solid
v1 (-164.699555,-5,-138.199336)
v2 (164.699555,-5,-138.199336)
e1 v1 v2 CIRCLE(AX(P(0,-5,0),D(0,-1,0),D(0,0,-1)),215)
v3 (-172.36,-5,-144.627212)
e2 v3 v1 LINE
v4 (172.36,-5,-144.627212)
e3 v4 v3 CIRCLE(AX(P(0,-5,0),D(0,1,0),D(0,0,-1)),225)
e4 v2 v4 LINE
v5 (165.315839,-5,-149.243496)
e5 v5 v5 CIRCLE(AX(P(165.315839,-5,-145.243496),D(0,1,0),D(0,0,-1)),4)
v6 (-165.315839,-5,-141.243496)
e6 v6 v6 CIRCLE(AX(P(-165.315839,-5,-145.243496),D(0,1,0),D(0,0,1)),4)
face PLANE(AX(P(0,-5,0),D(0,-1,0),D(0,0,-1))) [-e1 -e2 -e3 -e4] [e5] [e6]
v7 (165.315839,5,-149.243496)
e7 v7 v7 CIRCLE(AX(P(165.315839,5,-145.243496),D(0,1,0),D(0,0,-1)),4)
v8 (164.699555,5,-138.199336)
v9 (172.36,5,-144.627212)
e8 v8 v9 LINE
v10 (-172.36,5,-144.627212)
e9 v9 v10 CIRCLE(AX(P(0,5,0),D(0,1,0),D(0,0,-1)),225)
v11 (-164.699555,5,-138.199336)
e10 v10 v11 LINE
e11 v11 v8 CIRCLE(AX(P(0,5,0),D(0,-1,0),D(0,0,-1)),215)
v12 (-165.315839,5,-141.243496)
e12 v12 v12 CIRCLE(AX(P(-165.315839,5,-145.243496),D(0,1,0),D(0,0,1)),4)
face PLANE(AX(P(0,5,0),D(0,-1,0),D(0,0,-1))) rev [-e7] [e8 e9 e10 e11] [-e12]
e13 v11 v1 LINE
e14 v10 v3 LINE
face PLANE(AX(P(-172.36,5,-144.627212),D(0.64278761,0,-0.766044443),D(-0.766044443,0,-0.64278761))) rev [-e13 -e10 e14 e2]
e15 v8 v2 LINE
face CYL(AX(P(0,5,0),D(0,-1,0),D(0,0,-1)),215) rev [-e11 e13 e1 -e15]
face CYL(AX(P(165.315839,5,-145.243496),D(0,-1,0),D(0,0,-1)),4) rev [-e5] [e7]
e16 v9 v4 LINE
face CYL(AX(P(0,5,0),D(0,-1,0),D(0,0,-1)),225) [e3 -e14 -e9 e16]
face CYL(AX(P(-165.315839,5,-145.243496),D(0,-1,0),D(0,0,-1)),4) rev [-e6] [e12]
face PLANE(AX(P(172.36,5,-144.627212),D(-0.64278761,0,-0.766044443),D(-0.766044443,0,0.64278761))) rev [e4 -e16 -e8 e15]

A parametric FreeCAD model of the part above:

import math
import FreeCAD as App
import Part
import Sketcher
from FreeCAD import Vector
Q = App.Units.Quantity

doc = App.newDocument("Part")
body = doc.addObject("PartDesign::Body", "Body")

# Sketch on XZ plane
sketch1 = body.newObject("Sketcher::SketchObject", "Sketch")
sketch1.AttachmentSupport = (doc.getObject("XZ_Plane"), [""])
sketch1.MapMode = "FlatFace"
sketch1.addGeometry(Part.LineSegment(Vector(-172.36, -144.627212, 0), Vector(-164.699555, -138.199336, 0)), False)
sketch1.addGeometry(Part.ArcOfCircle(Part.Circle(Vector(0, 0, 0), Vector(0, 0, 1), 215), math.radians(-140), math.radians(-40)), False)
sketch1.addGeometry(Part.LineSegment(Vector(164.699555, -138.199336, 0), Vector(172.36, -144.627212, 0)), False)
sketch1.addGeometry(Part.ArcOfCircle(Part.Circle(Vector(0, 0, 0), Vector(0, 0, 1), 225), math.radians(-140), math.radians(-40)), False)
sketch1.addGeometry(Part.Circle(Vector(-165.315839, -145.243496, 0), Vector(0, 0, 1), 4), False)
sketch1.addGeometry(Part.Circle(Vector(165.315839, -145.243496, 0), Vector(0, 0, 1), 4), False)
sketch1.addConstraint(Sketcher.Constraint("Coincident", 0, 2, 1, 1))
sketch1.addConstraint(Sketcher.Constraint("Coincident", 1, 2, 2, 1))
sketch1.addConstraint(Sketcher.Constraint("Coincident", 2, 2, 3, 2))
sketch1.addConstraint(Sketcher.Constraint("Coincident", 3, 1, 0, 1))
sketch1.addConstraint(Sketcher.Constraint("Coincident", 1, 3, -1, 1))
sketch1.addConstraint(Sketcher.Constraint("Coincident", 3, 3, -1, 1))
sketch1.addConstraint(Sketcher.Constraint("Equal", 4, 5))
sketch1.addConstraint(Sketcher.Constraint("Symmetric", 4, 3, 5, 3, -2))
sketch1.addConstraint(Sketcher.Constraint("Horizontal", 0, 2, 1, 2))
sketch1.addConstraint(Sketcher.Constraint("Horizontal", 2, 2, 3, 1))
sketch1.addConstraint(Sketcher.Constraint("Diameter", 4, 8.0))
sketch1.addConstraint(Sketcher.Constraint("Radius", 1, 215.0))
sketch1.addConstraint(Sketcher.Constraint("Radius", 3, 225.0))
sketch1.addConstraint(Sketcher.Constraint("Angle", 0, Q("40 deg")))
sketch1.addConstraint(Sketcher.Constraint("DistanceX", -1, 1, 2, 2, 172.36))
sketch1.addConstraint(Sketcher.Constraint("DistanceX", 4, 3, -1, 1, 165.315839))
sketch1.addConstraint(Sketcher.Constraint("DistanceY", 4, 3, 0, 2, 7.04416))
pad1 = body.newObject("PartDesign::Pad", "Pad")
pad1.Profile = sketch1
pad1.Length = 10
pad1.Midplane = True

doc.recompute()
